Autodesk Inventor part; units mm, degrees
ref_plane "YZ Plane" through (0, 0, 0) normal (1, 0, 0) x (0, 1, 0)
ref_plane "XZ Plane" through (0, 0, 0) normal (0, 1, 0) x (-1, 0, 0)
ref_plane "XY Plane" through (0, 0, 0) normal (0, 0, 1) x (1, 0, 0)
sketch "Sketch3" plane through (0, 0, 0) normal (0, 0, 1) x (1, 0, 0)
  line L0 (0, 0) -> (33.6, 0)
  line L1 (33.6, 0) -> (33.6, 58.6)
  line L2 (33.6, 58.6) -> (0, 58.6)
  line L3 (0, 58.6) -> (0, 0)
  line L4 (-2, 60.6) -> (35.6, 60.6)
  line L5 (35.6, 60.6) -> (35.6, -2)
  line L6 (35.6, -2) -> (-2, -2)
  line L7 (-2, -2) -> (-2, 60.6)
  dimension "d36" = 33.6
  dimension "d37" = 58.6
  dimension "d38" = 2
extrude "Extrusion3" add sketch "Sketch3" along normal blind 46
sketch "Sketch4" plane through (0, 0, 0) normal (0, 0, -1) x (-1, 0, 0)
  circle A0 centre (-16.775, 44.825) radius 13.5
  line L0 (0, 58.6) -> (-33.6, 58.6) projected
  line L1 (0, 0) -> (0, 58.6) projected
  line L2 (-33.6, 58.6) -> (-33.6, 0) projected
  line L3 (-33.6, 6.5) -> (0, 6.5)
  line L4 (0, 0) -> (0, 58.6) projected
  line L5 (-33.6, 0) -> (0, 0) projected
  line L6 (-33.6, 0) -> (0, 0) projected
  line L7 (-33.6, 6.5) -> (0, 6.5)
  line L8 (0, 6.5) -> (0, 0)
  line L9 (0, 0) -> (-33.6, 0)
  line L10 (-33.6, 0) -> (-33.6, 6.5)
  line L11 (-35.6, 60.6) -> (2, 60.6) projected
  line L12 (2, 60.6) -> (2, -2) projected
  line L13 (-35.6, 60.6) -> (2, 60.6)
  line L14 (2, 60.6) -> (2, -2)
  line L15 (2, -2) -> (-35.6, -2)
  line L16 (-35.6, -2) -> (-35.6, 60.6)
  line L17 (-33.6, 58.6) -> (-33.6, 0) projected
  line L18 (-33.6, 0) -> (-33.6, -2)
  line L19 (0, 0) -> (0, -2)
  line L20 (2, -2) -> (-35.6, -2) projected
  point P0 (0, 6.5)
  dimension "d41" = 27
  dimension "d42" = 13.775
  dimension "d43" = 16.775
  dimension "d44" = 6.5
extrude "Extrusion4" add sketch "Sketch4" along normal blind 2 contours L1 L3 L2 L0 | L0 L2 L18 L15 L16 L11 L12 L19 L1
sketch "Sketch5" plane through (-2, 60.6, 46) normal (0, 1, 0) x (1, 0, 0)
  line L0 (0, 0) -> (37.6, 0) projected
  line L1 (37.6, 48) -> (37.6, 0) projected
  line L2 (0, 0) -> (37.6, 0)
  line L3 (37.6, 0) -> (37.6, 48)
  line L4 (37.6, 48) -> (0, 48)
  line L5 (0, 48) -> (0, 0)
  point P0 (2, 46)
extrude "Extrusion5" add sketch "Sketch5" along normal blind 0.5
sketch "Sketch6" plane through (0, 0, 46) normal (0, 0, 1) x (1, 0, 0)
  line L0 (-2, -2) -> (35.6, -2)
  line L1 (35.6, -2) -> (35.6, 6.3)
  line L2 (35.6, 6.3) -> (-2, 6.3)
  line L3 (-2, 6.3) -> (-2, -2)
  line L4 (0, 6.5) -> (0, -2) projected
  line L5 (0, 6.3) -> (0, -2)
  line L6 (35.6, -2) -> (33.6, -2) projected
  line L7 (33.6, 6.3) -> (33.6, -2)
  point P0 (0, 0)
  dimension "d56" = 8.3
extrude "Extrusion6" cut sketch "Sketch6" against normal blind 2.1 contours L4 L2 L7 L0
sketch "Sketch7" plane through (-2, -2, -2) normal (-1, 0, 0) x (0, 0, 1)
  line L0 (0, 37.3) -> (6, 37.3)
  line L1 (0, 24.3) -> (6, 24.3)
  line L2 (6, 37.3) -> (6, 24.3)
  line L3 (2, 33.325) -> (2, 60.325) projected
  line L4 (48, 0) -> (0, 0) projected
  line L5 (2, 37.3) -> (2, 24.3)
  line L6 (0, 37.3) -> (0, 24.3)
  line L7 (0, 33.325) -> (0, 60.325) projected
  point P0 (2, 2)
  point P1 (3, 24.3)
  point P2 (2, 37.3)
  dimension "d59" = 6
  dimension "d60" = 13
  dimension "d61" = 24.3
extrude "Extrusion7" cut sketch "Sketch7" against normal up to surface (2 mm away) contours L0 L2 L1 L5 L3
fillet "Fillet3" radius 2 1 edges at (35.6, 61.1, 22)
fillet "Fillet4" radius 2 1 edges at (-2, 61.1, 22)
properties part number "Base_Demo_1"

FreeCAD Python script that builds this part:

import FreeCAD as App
import Part
import Sketcher
from FreeCAD import Vector


def edges_at(feature, points):
    """Names of the edges that pass closest to the given points."""
    edges = feature.Shape.Edges
    near = lambda p: min(range(len(edges)), key=lambda i: edges[i].distToShape(Part.Vertex(*p))[0])
    return sorted({f"Edge{near(p) + 1}" for p in points})


def add_polygon(sketch, points):
    """Adds a closed chain of lines whose ends are joined by coincident constraints."""
    first, n = sketch.GeometryCount, len(points)
    for a, b in zip(points, points[1:] + points[:1]):
        sketch.addGeometry(Part.LineSegment(App.Vector(*a, 0), App.Vector(*b, 0)), False)
    for i in range(n):
        sketch.addConstraint(Sketcher.Constraint("Coincident", first + i, 2, first + (i + 1) % n, 1))

doc = App.newDocument("Part")
params = doc.addObject("Spreadsheet::Sheet", "Params")
for row, (alias, value) in enumerate([
    ("sketch1_width", "33.6 mm"),
    ("sketch1_height", "58.6 mm"),
    ("pad1_length", "46 mm"),
    ("sketch2_diameter", "27 mm"),
    ("sketch2_width", "2 mm"),
    ("sketch2_width2", "33.6 mm"),
    ("sketch2_height", "8.5 mm"),
    ("sketch2_height2", "62.6 mm"),
    ("pad2_length", "2 mm"),
    ("sketch3_height", "48 mm"),
    ("sketch3_width", "37.6 mm"),
    ("pad3_length", "0.5 mm"),
    ("sketch4_height", "8.3 mm"),
    ("sketch4_width", "33.6 mm"),
    ("pocket1_length", "2.1 mm"),
    ("sketch5_width", "13 mm"),
    ("sketch5_height", "4 mm"),
    ("pocket2_length", "2 mm"),
    ("fillet_radius", "2 mm"),
    ("fillet2_radius", "2 mm"),
], start=1):
    params.set(f"A{row}", alias)
    params.set(f"B{row}", "=" + value)
    params.setAlias(f"B{row}", alias)

body = doc.addObject("PartDesign::Body", "Body")

sketch1 = body.newObject("Sketcher::SketchObject", "Sketch")
sketch1.AttachmentSupport = (doc.getObject("XY_Plane"), [""])
sketch1.MapMode = "FlatFace"
add_polygon(sketch1, [(35.6, 60.6), (-2, 60.6), (-2, -2), (35.6, -2)])
add_polygon(sketch1, [(33.6, 0), (0, 0), (0, 58.6), (33.6, 58.6)])
sketch1.addConstraint([
    Sketcher.Constraint("Horizontal", 0),
    Sketcher.Constraint("Vertical", 1),
    Sketcher.Constraint("Horizontal", 2),
    Sketcher.Constraint("Vertical", 3),
    Sketcher.Constraint("Horizontal", 4),
    Sketcher.Constraint("Vertical", 5),
    Sketcher.Constraint("Horizontal", 6),
    Sketcher.Constraint("Vertical", 7),
    Sketcher.Constraint("Coincident", 4, 2, -1, 1),
    Sketcher.Constraint("DistanceX", 4, 2, 4, 1, 33.6),
    Sketcher.Constraint("DistanceY", 5, 1, 5, 2, 58.6),
    Sketcher.Constraint("DistanceX", 0, 2, -1, 1, 2.0),
    Sketcher.Constraint("DistanceY", 1, 2, -1, 1, 2.0),
    Sketcher.Constraint("DistanceY", 5, 2, 0, 2, 2.0),
    Sketcher.Constraint("DistanceX", 6, 2, 3, 2, 2.0),
])
sketch1.setExpression("Constraints[17]", "Params.sketch1_width")
sketch1.setExpression("Constraints[18]", "Params.sketch1_height")
pad1 = body.newObject("PartDesign::Pad", "Pad")
pad1.Profile = sketch1
pad1.setExpression("Length", "Params.pad1_length")

sketch2 = body.newObject("Sketcher::SketchObject", "Sketch001")
sketch2.AttachmentSupport = (doc.getObject("XY_Plane"), [""])
sketch2.MapMode = "FlatFace"
add_polygon(sketch2, [(33.6, 6.5), (0, 6.5), (0, -2), (-2, -2), (-2, 60.6), (35.6, 60.6), (35.6, -2), (33.6, -2)])
sketch2.addGeometry(Part.Circle(Vector(16.775, 44.825, 0), Vector(0, 0, 1), 13.5), False)
sketch2.addConstraint([
    Sketcher.Constraint("Horizontal", 0),
    Sketcher.Constraint("Vertical", 1),
    Sketcher.Constraint("Horizontal", 2),
    Sketcher.Constraint("Vertical", 3),
    Sketcher.Constraint("Horizontal", 4),
    Sketcher.Constraint("Vertical", 5),
    Sketcher.Constraint("Horizontal", 6),
    Sketcher.Constraint("Vertical", 7),
    Sketcher.Constraint("PointOnObject", 0, 2, -2),
    Sketcher.Constraint("Horizontal", 2, 2, 5, 2),
    Sketcher.Constraint("Equal", 2, 6),
    Sketcher.Constraint("Diameter", 8, 27.0),
    Sketcher.Constraint("DistanceY", -1, 1, 0, 2, 6.5),
    Sketcher.Constraint("DistanceX", 2, 2, 2, 1, 2.0),
    Sketcher.Constraint("DistanceX", 0, 2, 0, 1, 33.6),
    Sketcher.Constraint("DistanceY", 1, 2, 1, 1, 8.5),
    Sketcher.Constraint("DistanceY", 3, 1, 3, 2, 62.6),
    Sketcher.Constraint("DistanceX", -1, 1, 8, 3, 16.775),
    Sketcher.Constraint("DistanceY", -1, 1, 8, 3, 44.825),
])
sketch2.setExpression("Constraints[19]", "Params.sketch2_diameter")
sketch2.setExpression("Constraints[21]", "Params.sketch2_width")
sketch2.setExpression("Constraints[22]", "Params.sketch2_width2")
sketch2.setExpression("Constraints[23]", "Params.sketch2_height")
sketch2.setExpression("Constraints[24]", "Params.sketch2_height2")
pad2 = body.newObject("PartDesign::Pad", "Pad001")
pad2.Profile = sketch2
pad2.setExpression("Length", "Params.pad2_length")
pad2.Reversed = True

sketch3 = body.newObject("Sketcher::SketchObject", "Sketch002")
sketch3.AttachmentSupport = (doc.getObject("XZ_Plane"), [""])
sketch3.MapMode = "FlatFace"
sketch3.AttachmentOffset = App.Placement(Vector(0, 0, -60.6), App.Rotation())
add_polygon(sketch3, [(-2, -2), (-2, 46), (35.6, 46), (35.6, -2)])
sketch3.addConstraint([
    Sketcher.Constraint("Vertical", 0),
    Sketcher.Constraint("Horizontal", 1),
    Sketcher.Constraint("Vertical", 2),
    Sketcher.Constraint("Horizontal", 3),
    Sketcher.Constraint("DistanceY", 0, 1, 0, 2, 48.0),
    Sketcher.Constraint("DistanceX", 1, 1, 1, 2, 37.6),
    Sketcher.Constraint("DistanceX", 0, 2, -1, 1, 2.0),
    Sketcher.Constraint("DistanceY", -1, 1, 0, 2, 46.0),
])
sketch3.setExpression("Constraints[8]", "Params.sketch3_height")
sketch3.setExpression("Constraints[9]", "Params.sketch3_width")
pad3 = body.newObject("PartDesign::Pad", "Pad002")
pad3.Profile = sketch3
pad3.setExpression("Length", "Params.pad3_length")
pad3.Reversed = True

sketch4 = body.newObject("Sketcher::SketchObject", "Sketch003")
sketch4.AttachmentSupport = (doc.getObject("XY_Plane"), [""])
sketch4.MapMode = "FlatFace"
sketch4.AttachmentOffset = App.Placement(Vector(0, 0, 46), App.Rotation())
add_polygon(sketch4, [(0, 6.3), (0, -2), (33.6, -2), (33.6, 6.3)])
sketch4.addConstraint([
    Sketcher.Constraint("Vertical", 0),
    Sketcher.Constraint("Horizontal", 1),
    Sketcher.Constraint("Vertical", 2),
    Sketcher.Constraint("Horizontal", 3),
    Sketcher.Constraint("PointOnObject", 0, 2, -2),
    Sketcher.Constraint("DistanceY", 0, 2, 0, 1, 8.3),
    Sketcher.Constraint("DistanceX", 1, 1, 1, 2, 33.6),
    Sketcher.Constraint("DistanceY", 0, 2, -1, 1, 2.0),
])
sketch4.setExpression("Constraints[9]", "Params.sketch4_height")
sketch4.setExpression("Constraints[10]", "Params.sketch4_width")
pocket1 = body.newObject("PartDesign::Pocket", "Pocket")
pocket1.Profile = sketch4
pocket1.setExpression("Length", "Params.pocket1_length")

sketch5 = body.newObject("Sketcher::SketchObject", "Sketch004")
sketch5.AttachmentSupport = (doc.getObject("YZ_Plane"), [""])
sketch5.MapMode = "FlatFace"
sketch5.AttachmentOffset = App.Placement(Vector(0, 0, -2), App.Rotation())
add_polygon(sketch5, [(35.3, 4), (35.3, 0), (22.3, 0), (22.3, 4)])
sketch5.addConstraint([
    Sketcher.Constraint("Vertical", 0),
    Sketcher.Constraint("Horizontal", 1),
    Sketcher.Constraint("Vertical", 2),
    Sketcher.Constraint("Horizontal", 3),
    Sketcher.Constraint("PointOnObject", 0, 2, -1),
    Sketcher.Constraint("DistanceX", 1, 2, 1, 1, 13.0),
    Sketcher.Constraint("DistanceY", 0, 2, 0, 1, 4.0),
    Sketcher.Constraint("DistanceX", -1, 1, 0, 2, 35.3),
])
sketch5.setExpression("Constraints[9]", "Params.sketch5_width")
sketch5.setExpression("Constraints[10]", "Params.sketch5_height")
pocket2 = body.newObject("PartDesign::Pocket", "Pocket001")
pocket2.Profile = sketch5
pocket2.setExpression("Length", "Params.pocket2_length")
pocket2.Reversed = True
doc.recompute()

fillet = body.newObject("PartDesign::Fillet", "Fillet")
fillet.Base = (pocket2, edges_at(pocket2, [(35.6, 61.1, 22)]))
fillet.setExpression("Radius", "Params.fillet_radius")
doc.recompute()

fillet2 = body.newObject("PartDesign::Fillet", "Fillet001")
fillet2.Base = (fillet, edges_at(fillet, [(-2, 61.1, 22)]))
fillet2.setExpression("Radius", "Params.fillet2_radius")

doc.recompute()
